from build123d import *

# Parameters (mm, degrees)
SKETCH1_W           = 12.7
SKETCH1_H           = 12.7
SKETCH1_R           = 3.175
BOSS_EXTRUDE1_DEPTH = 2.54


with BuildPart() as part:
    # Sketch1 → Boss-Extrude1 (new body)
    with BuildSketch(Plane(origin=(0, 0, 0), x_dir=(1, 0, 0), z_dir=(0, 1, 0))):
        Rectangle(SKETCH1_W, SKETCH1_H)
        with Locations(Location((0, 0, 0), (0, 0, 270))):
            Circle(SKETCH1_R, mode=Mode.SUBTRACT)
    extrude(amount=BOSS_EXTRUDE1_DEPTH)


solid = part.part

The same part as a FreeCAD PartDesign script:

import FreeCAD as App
import Part
import Sketcher
from FreeCAD import Vector
Q = App.Units.Quantity

doc = App.newDocument("Part")
body = doc.addObject("PartDesign::Body", "Body")

sketch1 = body.newObject("Sketcher::SketchObject", "Sketch")
sketch1.AttachmentSupport = (doc.getObject("XZ_Plane"), [""])
sketch1.MapMode = "FlatFace"
sketch1.addGeometry([
    Part.LineSegment(Vector(-6.3, -6.3, 0), Vector(-6.3, 6.3, 0)),
    Part.LineSegment(Vector(-6.3, 6.3, 0), Vector(6.3, 6.3, 0)),
    Part.LineSegment(Vector(6.3, 6.3, 0), Vector(6.3, -6.3, 0)),
    Part.LineSegment(Vector(6.3, -6.3, 0), Vector(-6.3, -6.3, 0)),
    Part.Circle(Vector(0, 0, 0), Vector(0, 0, 1), 3.2),
], False)
sketch1.addConstraint([
    Sketcher.Constraint("Coincident", 0, 2, 1, 1),
    Sketcher.Constraint("Coincident", 1, 2, 2, 1),
    Sketcher.Constraint("Coincident", 2, 2, 3, 1),
    Sketcher.Constraint("Coincident", 3, 2, 0, 1),
    Sketcher.Constraint("Vertical", 0),
    Sketcher.Constraint("Horizontal", 1),
    Sketcher.Constraint("Vertical", 2),
    Sketcher.Constraint("Horizontal", 3),
    Sketcher.Constraint("Coincident", 4, 3, -1, 1),
    Sketcher.Constraint("Symmetric", 0, 2, 2, 2, -1, 1),
    Sketcher.Constraint("Equal", 3, 0),
    Sketcher.Constraint("Diameter", 4, Q("0.25 in")),
    Sketcher.Constraint("DistanceX", 1, 1, 1, 2, Q("0.5 in")),
])
pad1 = body.newObject("PartDesign::Pad", "Pad")
pad1.Profile = sketch1
pad1.Length = Q("0.1 in")
pad1.Reversed = True

doc.recompute()
